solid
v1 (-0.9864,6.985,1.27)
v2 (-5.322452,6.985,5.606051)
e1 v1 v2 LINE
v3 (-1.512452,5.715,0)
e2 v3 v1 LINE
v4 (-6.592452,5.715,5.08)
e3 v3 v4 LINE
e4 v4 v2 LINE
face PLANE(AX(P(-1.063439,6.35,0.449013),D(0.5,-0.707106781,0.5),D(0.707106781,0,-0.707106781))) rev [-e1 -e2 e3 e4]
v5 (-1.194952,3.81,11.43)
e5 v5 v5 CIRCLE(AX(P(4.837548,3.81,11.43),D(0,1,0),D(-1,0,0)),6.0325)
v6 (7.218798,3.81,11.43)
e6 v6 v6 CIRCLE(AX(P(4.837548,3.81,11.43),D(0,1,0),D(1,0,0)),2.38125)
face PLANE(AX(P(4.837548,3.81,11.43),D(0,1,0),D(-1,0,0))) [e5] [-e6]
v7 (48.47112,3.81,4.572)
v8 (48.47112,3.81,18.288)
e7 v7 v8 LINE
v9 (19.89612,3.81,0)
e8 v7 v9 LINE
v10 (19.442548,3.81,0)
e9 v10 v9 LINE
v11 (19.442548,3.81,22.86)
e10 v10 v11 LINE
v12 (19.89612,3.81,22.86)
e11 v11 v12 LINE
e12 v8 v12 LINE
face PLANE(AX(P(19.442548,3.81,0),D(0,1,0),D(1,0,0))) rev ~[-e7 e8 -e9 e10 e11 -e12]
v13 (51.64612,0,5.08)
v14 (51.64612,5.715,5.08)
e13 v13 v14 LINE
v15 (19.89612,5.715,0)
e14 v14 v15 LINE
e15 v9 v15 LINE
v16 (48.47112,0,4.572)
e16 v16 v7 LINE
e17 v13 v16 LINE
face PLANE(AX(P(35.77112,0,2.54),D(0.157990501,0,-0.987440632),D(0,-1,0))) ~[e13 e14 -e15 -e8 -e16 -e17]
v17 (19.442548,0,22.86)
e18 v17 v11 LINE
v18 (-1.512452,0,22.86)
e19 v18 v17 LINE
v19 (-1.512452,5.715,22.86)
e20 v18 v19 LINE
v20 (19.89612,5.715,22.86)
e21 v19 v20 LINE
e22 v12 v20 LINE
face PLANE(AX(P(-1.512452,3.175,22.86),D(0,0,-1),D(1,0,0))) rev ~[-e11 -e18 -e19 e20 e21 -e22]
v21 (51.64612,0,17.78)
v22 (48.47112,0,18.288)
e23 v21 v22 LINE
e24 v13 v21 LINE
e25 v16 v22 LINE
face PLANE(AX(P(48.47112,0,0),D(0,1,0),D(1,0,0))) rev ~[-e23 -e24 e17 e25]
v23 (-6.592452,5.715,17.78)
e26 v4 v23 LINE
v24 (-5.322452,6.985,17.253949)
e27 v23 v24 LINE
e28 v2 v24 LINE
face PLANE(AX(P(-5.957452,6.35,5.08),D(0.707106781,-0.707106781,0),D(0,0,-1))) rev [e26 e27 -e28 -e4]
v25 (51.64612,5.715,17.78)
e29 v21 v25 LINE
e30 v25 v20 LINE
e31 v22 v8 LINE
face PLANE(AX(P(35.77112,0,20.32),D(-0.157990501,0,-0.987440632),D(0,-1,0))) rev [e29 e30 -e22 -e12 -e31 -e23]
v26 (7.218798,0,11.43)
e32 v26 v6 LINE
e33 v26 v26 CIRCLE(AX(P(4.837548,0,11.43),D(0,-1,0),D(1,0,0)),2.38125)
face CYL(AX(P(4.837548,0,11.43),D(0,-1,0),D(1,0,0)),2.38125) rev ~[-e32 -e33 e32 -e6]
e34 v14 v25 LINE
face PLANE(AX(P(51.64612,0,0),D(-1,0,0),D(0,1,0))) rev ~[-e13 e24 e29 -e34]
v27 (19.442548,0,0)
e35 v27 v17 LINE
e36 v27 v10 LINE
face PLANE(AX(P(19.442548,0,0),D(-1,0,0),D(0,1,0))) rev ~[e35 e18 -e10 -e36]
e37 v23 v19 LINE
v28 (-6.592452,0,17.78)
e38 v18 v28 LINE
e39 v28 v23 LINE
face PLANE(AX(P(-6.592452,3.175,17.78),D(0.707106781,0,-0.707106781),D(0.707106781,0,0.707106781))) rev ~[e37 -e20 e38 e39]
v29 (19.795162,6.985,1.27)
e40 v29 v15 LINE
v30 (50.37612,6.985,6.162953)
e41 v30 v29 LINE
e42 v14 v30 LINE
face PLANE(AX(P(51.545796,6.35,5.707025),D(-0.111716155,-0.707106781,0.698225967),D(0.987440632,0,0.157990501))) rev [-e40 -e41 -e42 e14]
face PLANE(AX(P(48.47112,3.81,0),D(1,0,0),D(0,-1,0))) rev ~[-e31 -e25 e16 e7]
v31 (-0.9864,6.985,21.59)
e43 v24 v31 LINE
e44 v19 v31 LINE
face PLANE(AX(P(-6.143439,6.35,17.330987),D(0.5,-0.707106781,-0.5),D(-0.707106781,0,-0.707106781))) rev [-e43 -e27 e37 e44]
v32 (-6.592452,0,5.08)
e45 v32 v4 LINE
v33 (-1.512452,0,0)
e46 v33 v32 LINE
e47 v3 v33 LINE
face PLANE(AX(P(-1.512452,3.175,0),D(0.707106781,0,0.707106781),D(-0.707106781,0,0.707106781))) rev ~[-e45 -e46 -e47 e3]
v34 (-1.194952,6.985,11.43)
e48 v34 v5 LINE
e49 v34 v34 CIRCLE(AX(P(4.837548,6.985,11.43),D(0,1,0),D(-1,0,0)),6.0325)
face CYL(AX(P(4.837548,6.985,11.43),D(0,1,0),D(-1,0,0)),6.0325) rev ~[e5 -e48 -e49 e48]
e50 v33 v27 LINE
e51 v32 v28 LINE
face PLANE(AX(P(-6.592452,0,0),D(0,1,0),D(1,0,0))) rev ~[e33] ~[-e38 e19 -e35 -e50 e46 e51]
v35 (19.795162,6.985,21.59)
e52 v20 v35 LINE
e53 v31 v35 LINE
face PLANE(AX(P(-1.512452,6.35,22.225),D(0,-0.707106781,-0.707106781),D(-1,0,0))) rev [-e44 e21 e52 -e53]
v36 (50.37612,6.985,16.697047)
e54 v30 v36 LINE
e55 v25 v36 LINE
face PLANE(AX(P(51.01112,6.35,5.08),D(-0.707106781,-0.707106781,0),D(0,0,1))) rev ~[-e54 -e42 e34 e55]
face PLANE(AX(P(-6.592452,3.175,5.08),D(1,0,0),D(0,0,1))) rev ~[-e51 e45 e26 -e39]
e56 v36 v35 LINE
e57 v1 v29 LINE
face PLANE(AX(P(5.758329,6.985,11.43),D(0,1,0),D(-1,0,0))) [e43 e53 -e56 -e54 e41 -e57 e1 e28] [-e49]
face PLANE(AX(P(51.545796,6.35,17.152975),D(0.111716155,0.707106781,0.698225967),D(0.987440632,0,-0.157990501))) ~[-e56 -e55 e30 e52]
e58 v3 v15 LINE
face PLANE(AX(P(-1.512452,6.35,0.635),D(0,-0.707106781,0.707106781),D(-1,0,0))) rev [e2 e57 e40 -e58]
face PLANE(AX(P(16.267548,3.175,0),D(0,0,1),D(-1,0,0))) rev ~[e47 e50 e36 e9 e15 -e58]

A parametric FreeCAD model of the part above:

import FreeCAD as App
import Part
import Sketcher
from FreeCAD import Vector
Q = App.Units.Quantity


def edges_at(feature, points):
    """Names of the edges that pass closest to the given points."""
    edges = feature.Shape.Edges
    near = lambda p: min(range(len(edges)), key=lambda i: edges[i].distToShape(Part.Vertex(*p))[0])
    return sorted({f"Edge{near(p) + 1}" for p in points})

doc = App.newDocument("Part")
body = doc.addObject("PartDesign::Body", "Body")

# Sketch on XY plane
sketch1 = body.newObject("Sketcher::SketchObject", "Sketch")
sketch1.AttachmentSupport = (doc.getObject("XY_Plane"), [""])
sketch1.MapMode = "FlatFace"
sketch1.addGeometry([
    Part.LineSegment(Vector(-6.6, 3.2, 0), Vector(-6.6, 0, 0)),  # 0
    Part.LineSegment(Vector(-6.6, 0, 0), Vector(19.4, 0, 0)),  # 1
    Part.LineSegment(Vector(19.4, 0, 0), Vector(19.4, 3.8, 0)),  # 2
    Part.LineSegment(Vector(19.4, 3.8, 0), Vector(48.5, 3.8, 0)),  # 3
    Part.LineSegment(Vector(48.5, 3.8, 0), Vector(48.5, 0, 0)),  # 4
    Part.LineSegment(Vector(48.5, 0, 0), Vector(51.6, 0, 0)),  # 5
    Part.LineSegment(Vector(51.6, 0, 0), Vector(51.6, 7, 0)),  # 6
    Part.LineSegment(Vector(51.6, 7, 0), Vector(16.3, 7, 0)),  # 7
    Part.LineSegment(Vector(16.3, 7, 0), Vector(16.3, 3.2, 0)),  # 8
    Part.LineSegment(Vector(16.3, 3.2, 0), Vector(-6.6, 3.2, 0)),  # 9
], False)
sketch1.addConstraint([
    Sketcher.Constraint("Coincident", 0, 2, 1, 1),
    Sketcher.Constraint("Coincident", 1, 2, 2, 1),
    Sketcher.Constraint("Coincident", 2, 2, 3, 1),
    Sketcher.Constraint("Coincident", 3, 2, 4, 1),
    Sketcher.Constraint("Coincident", 4, 2, 5, 1),
    Sketcher.Constraint("Coincident", 5, 2, 6, 1),
    Sketcher.Constraint("Coincident", 6, 2, 7, 1),
    Sketcher.Constraint("Coincident", 7, 2, 8, 1),
    Sketcher.Constraint("Coincident", 8, 2, 9, 1),
    Sketcher.Constraint("Coincident", 9, 2, 0, 1),
    Sketcher.Constraint("Vertical", 0),
    Sketcher.Constraint("Horizontal", 1),
    Sketcher.Constraint("Vertical", 2),
    Sketcher.Constraint("Horizontal", 3),
    Sketcher.Constraint("Vertical", 4),
    Sketcher.Constraint("Horizontal", 5),
    Sketcher.Constraint("Vertical", 6),
    Sketcher.Constraint("Horizontal", 7),
    Sketcher.Constraint("Vertical", 8),
    Sketcher.Constraint("Horizontal", 9),
    Sketcher.Constraint("PointOnObject", 0, 2, -1),
    Sketcher.Constraint("PointOnObject", 4, 2, -1),
    Sketcher.Constraint("Equal", 5, 0),
    Sketcher.Constraint("Equal", 4, 8),
    Sketcher.Constraint("DistanceX", 9, 2, 9, 1, Q("0.9 in")),
    Sketcher.Constraint("DistanceY", 2, 1, 2, 2, Q("0.15 in")),
    Sketcher.Constraint("DistanceX", 1, 1, 1, 2, Q("1.025 in")),
    Sketcher.Constraint("DistanceX", 5, 1, 5, 2, Q("0.125 in")),
    Sketcher.Constraint("DistanceX", 3, 1, 3, 2, Q("29.028571 mm")),
    Sketcher.Constraint("DistanceX", 0, 2, -1, 1, Q("6.592452 mm")),
])
pad1 = body.newObject("PartDesign::Pad", "Pad")
pad1.Profile = sketch1
pad1.Length = Q("0.9 in")
doc.recompute()

chamfer = body.newObject("PartDesign::Chamfer", "Chamfer")
chamfer.Base = (pad1, edges_at(pad1, [(51.646, 3.493, 22.86), (51.646, 3.493, 0)]))
chamfer.ChamferType = "Two distances"
chamfer.Size = Q("0.2 in")
chamfer.Size2 = Q("1.25 in")
doc.recompute()

chamfer2 = body.newObject("PartDesign::Chamfer", "Chamfer001")
chamfer2.Base = (chamfer, edges_at(chamfer, [(-6.592, 1.587, 0), (-6.592, 1.587, 22.86)]))
chamfer2.Size = Q("0.2 in")

# Sketch on XZ plane
sketch2 = body.newObject("Sketcher::SketchObject", "Sketch001")
sketch2.AttachmentSupport = (doc.getObject("XZ_Plane"), [""])
sketch2.MapMode = "FlatFace"
sketch2.AttachmentOffset = App.Placement(Vector(0, 0, -0.125 * 25.4), App.Rotation())
sketch2.addGeometry([
    Part.LineSegment(Vector(-2, 0, 0), Vector(-7, 5, 0)),  # 0
    Part.LineSegment(Vector(-7, 5, 0), Vector(-7, 18, 0)),  # 1
    Part.LineSegment(Vector(-7, 18, 0), Vector(-2, 23, 0)),  # 2
    Part.LineSegment(Vector(-2, 23, 0), Vector(16, 23, 0)),  # 3
    Part.LineSegment(Vector(16, 23, 0), Vector(16, 0, 0)),  # 4
    Part.LineSegment(Vector(16, 0, 0), Vector(-2, 0, 0)),  # 5
], False)
sketch2.addConstraint([
    Sketcher.Constraint("Coincident", 0, 2, 1, 1),
    Sketcher.Constraint("Coincident", 1, 2, 2, 1),
    Sketcher.Constraint("Coincident", 2, 2, 3, 1),
    Sketcher.Constraint("Coincident", 3, 2, 4, 1),
    Sketcher.Constraint("Coincident", 4, 2, 5, 1),
    Sketcher.Constraint("Coincident", 5, 2, 0, 1),
    Sketcher.Constraint("Vertical", 1),
    Sketcher.Constraint("Horizontal", 3),
    Sketcher.Constraint("Vertical", 4),
    Sketcher.Constraint("Horizontal", 5),
    Sketcher.Constraint("PointOnObject", 4, 2, -1),
    Sketcher.Constraint("Perpendicular", 0, 2),
    Sketcher.Constraint("Vertical", 2, 2, 5, 2),
    Sketcher.Constraint("Equal", 0, 2),
    Sketcher.Constraint("DistanceX", 3, 1, 3, 2, Q("0.7 in")),
    Sketcher.Constraint("DistanceY", 1, 1, 1, 2, Q("0.5 in")),
    Sketcher.Constraint("DistanceY", 4, 2, 4, 1, Q("0.9 in")),
    Sketcher.Constraint("DistanceX", 0, 2, -1, 1, Q("6.592452 mm")),
])
pad2 = body.newObject("PartDesign::Pad", "Pad001")
pad2.Profile = sketch2
pad2.Length = Q("0.15 in")
pad2.Reversed = True
doc.recompute()

chamfer3 = body.newObject("PartDesign::Chamfer", "Chamfer002")
chamfer3.Base = (pad2, edges_at(pad2, [
    (51.646, 6.985, 11.43),
    (35.771, 6.985, 20.32),
    (9.192, 6.985, 22.86),
    (-4.052, 6.985, 20.32),
    (-6.592, 6.985, 11.43),
    (-4.052, 6.985, 2.54),
    (9.192, 6.985, 0),
    (35.771, 6.985, 2.54),
]))
chamfer3.Size = Q("0.05 in")

# Sketch on XZ plane
sketch3 = body.newObject("Sketcher::SketchObject", "Sketch002")
sketch3.AttachmentSupport = (doc.getObject("XZ_Plane"), [""])
sketch3.MapMode = "FlatFace"
sketch3.addGeometry(Part.Circle(Vector(4.8, 11.4, 0), Vector(0, 0, 1), 2.4), False)
sketch3.addConstraint([
    Sketcher.Constraint("Diameter", 0, Q("0.1875 in")),
    Sketcher.Constraint("DistanceY", -1, 1, 0, 3, Q("0.45 in")),
    Sketcher.Constraint("DistanceX", -1, 1, 0, 3, Q("4.837548 mm")),
])
pocket1 = body.newObject("PartDesign::Pocket", "Pocket")
pocket1.Profile = sketch3
pocket1.Length = Q("1 in")

# Sketch on XZ plane
sketch4 = body.newObject("Sketcher::SketchObject", "Sketch003")
sketch4.AttachmentSupport = (doc.getObject("XZ_Plane"), [""])
sketch4.MapMode = "FlatFace"
sketch4.AttachmentOffset = App.Placement(Vector(0, 0, -0.275 * 25.4), App.Rotation())
sketch4.addGeometry([
    Part.Circle(Vector(4.8, 11.4, 0), Vector(0, 0, 1), 6),
    Part.Circle(Vector(4.8, 11.4, 0), Vector(0, 0, 1), 2.4),
], False)
sketch4.addConstraint([
    Sketcher.Constraint("Coincident", 1, 3, 0, 3),
    Sketcher.Constraint("Diameter", 0, Q("0.475 in")),
    Sketcher.Constraint("Diameter", 1, Q("0.1875 in")),
    Sketcher.Constraint("DistanceY", -1, 1, 0, 3, Q("0.45 in")),
    Sketcher.Constraint("DistanceX", -1, 1, 0, 3, Q("4.837548 mm")),
])
pocket2 = body.newObject("PartDesign::Pocket", "Pocket001")
pocket2.Profile = sketch4
pocket2.Length = Q("0.125 in")
pocket2.Reversed = True

doc.recompute()
